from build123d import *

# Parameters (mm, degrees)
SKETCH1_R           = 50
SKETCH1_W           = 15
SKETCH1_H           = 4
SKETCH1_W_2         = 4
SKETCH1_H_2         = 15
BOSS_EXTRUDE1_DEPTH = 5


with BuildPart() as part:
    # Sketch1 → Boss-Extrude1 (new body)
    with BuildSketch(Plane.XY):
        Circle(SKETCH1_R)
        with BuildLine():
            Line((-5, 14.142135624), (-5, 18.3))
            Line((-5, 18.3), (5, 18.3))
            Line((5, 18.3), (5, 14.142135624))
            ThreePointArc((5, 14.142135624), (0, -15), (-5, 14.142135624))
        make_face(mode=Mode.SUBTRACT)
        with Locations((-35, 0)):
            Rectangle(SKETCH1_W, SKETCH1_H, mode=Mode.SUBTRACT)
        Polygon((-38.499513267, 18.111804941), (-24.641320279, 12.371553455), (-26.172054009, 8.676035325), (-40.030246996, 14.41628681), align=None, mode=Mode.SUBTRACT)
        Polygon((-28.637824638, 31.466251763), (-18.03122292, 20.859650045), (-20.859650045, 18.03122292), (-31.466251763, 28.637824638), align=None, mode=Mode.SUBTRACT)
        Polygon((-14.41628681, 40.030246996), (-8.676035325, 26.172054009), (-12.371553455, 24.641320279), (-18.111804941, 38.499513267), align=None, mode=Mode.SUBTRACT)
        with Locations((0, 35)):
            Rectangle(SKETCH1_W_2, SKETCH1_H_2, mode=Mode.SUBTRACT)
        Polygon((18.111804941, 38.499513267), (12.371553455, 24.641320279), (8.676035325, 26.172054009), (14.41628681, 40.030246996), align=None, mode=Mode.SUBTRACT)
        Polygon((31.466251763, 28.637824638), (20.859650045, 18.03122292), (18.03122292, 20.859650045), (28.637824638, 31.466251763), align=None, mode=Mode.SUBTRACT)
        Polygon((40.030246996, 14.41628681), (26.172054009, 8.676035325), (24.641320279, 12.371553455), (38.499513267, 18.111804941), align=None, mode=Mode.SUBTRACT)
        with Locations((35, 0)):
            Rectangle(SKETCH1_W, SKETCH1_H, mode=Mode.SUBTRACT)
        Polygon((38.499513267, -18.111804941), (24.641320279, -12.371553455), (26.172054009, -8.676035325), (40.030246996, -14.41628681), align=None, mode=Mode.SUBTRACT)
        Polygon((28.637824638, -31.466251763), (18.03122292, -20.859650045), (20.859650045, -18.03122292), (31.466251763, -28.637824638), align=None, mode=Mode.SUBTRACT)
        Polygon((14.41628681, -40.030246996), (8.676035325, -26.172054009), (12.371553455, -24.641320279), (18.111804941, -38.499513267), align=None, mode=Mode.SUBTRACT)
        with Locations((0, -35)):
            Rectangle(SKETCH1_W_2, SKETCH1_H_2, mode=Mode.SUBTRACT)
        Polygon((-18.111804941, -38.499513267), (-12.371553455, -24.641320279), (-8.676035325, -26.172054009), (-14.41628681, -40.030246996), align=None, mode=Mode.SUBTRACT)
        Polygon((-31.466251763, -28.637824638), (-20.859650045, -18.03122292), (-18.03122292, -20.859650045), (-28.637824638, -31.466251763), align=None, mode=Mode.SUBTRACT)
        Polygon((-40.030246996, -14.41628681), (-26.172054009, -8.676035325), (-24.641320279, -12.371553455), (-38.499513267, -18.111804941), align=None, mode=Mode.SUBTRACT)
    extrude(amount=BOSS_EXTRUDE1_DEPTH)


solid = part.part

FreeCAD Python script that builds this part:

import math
import FreeCAD as App
import Part
import Sketcher
Q = App.Units.Quantity

doc = App.newDocument("Part")
body = doc.addObject("PartDesign::Body", "Body")

sketch1 = body.newObject("Sketcher::SketchObject", "Sketch")
sketch1.AttachmentSupport = (doc.getObject("XY_Plane"), [""])
sketch1.MapMode = "FlatFace"
sketch1.addGeometry([
    Part.Circle(App.Vector(0, 0, 0), App.Vector(0, 0, 1), 50),
    Part.LineSegment(App.Vector(-28.637825, -31.466252, 0), App.Vector(-31.466252, -28.637825, 0)),
    Part.LineSegment(App.Vector(-31.466252, -28.637825, 0), App.Vector(-20.85965, -18.031223, 0)),
    Part.LineSegment(App.Vector(-20.85965, -18.031223, 0), App.Vector(-18.031223, -20.85965, 0)),
    Part.LineSegment(App.Vector(-18.031223, -20.85965, 0), App.Vector(-28.637825, -31.466252, 0)),
    Part.LineSegment(App.Vector(-14.416287, -40.030247, 0), App.Vector(-18.111805, -38.499513, 0)),
    Part.LineSegment(App.Vector(-18.111805, -38.499513, 0), App.Vector(-12.371553, -24.64132, 0)),
    Part.LineSegment(App.Vector(-12.371553, -24.64132, 0), App.Vector(-8.676035, -26.172054, 0)),
    Part.LineSegment(App.Vector(-8.676035, -26.172054, 0), App.Vector(-14.416287, -40.030247, 0)),
    Part.LineSegment(App.Vector(-38.499513, -18.111805, 0), App.Vector(-40.030247, -14.416287, 0)),
    Part.LineSegment(App.Vector(-40.030247, -14.416287, 0), App.Vector(-26.172054, -8.676035, 0)),
    Part.LineSegment(App.Vector(-26.172054, -8.676035, 0), App.Vector(-24.64132, -12.371553, 0)),
    Part.LineSegment(App.Vector(-24.64132, -12.371553, 0), App.Vector(-38.499513, -18.111805, 0)),
    Part.LineSegment(App.Vector(2, -42.5, 0), App.Vector(-2, -42.5, 0)),
    Part.LineSegment(App.Vector(-2, -42.5, 0), App.Vector(-2, -27.5, 0)),
    Part.LineSegment(App.Vector(-2, -27.5, 0), App.Vector(2, -27.5, 0)),
    Part.LineSegment(App.Vector(2, -27.5, 0), App.Vector(2, -42.5, 0)),
    Part.LineSegment(App.Vector(18.111805, -38.499513, 0), App.Vector(14.416287, -40.030247, 0)),
    Part.LineSegment(App.Vector(14.416287, -40.030247, 0), App.Vector(8.676035, -26.172054, 0)),
    Part.LineSegment(App.Vector(8.676035, -26.172054, 0), App.Vector(12.371553, -24.64132, 0)),
    Part.LineSegment(App.Vector(12.371553, -24.64132, 0), App.Vector(18.111805, -38.499513, 0)),
    Part.LineSegment(App.Vector(31.466252, -28.637825, 0), App.Vector(28.637825, -31.466252, 0)),
    Part.LineSegment(App.Vector(28.637825, -31.466252, 0), App.Vector(18.031223, -20.85965, 0)),
    Part.LineSegment(App.Vector(18.031223, -20.85965, 0), App.Vector(20.85965, -18.031223, 0)),
    Part.LineSegment(App.Vector(20.85965, -18.031223, 0), App.Vector(31.466252, -28.637825, 0)),
    Part.LineSegment(App.Vector(40.030247, -14.416287, 0), App.Vector(38.499513, -18.111805, 0)),
    Part.LineSegment(App.Vector(38.499513, -18.111805, 0), App.Vector(24.64132, -12.371553, 0)),
    Part.LineSegment(App.Vector(24.64132, -12.371553, 0), App.Vector(26.172054, -8.676035, 0)),
    Part.LineSegment(App.Vector(26.172054, -8.676035, 0), App.Vector(40.030247, -14.416287, 0)),
    Part.LineSegment(App.Vector(-27.5, -2, 0), App.Vector(-42.5, -2, 0)),
    Part.LineSegment(App.Vector(-42.5, -2, 0), App.Vector(-42.5, 2, 0)),
    Part.LineSegment(App.Vector(-42.5, 2, 0), App.Vector(-27.5, 2, 0)),
    Part.LineSegment(App.Vector(-27.5, 2, 0), App.Vector(-27.5, -2, 0)),
    Part.LineSegment(App.Vector(-40.030247, 14.416287, 0), App.Vector(-38.499513, 18.111805, 0)),
    Part.LineSegment(App.Vector(-38.499513, 18.111805, 0), App.Vector(-24.64132, 12.371553, 0)),
    Part.LineSegment(App.Vector(-24.64132, 12.371553, 0), App.Vector(-26.172054, 8.676035, 0)),
    Part.LineSegment(App.Vector(-26.172054, 8.676035, 0), App.Vector(-40.030247, 14.416287, 0)),
    Part.LineSegment(App.Vector(-31.466252, 28.637825, 0), App.Vector(-28.637825, 31.466252, 0)),
    Part.LineSegment(App.Vector(-28.637825, 31.466252, 0), App.Vector(-18.031223, 20.85965, 0)),
    Part.LineSegment(App.Vector(-18.031223, 20.85965, 0), App.Vector(-20.85965, 18.031223, 0)),
    Part.LineSegment(App.Vector(-20.85965, 18.031223, 0), App.Vector(-31.466252, 28.637825, 0)),
    Part.LineSegment(App.Vector(-18.111805, 38.499513, 0), App.Vector(-14.416287, 40.030247, 0)),
    Part.LineSegment(App.Vector(-14.416287, 40.030247, 0), App.Vector(-8.676035, 26.172054, 0)),
    Part.LineSegment(App.Vector(-8.676035, 26.172054, 0), App.Vector(-12.371553, 24.64132, 0)),
    Part.LineSegment(App.Vector(-12.371553, 24.64132, 0), App.Vector(-18.111805, 38.499513, 0)),
    Part.ArcOfCircle(Part.Circle(App.Vector(0, 0, 0), App.Vector(0, 0, 1), 15), math.radians(109.471221), math.radians(430.528779)),
    Part.LineSegment(App.Vector(-5, 14.142136, 0), App.Vector(-5, 18.3, 0)),
    Part.LineSegment(App.Vector(-5, 18.3, 0), App.Vector(5, 18.3, 0)),
    Part.LineSegment(App.Vector(5, 18.3, 0), App.Vector(5, 14.142136, 0)),
    Part.LineSegment(App.Vector(42.5, -2, 0), App.Vector(27.5, -2, 0)),
    Part.LineSegment(App.Vector(27.5, -2, 0), App.Vector(27.5, 2, 0)),
    Part.LineSegment(App.Vector(27.5, 2, 0), App.Vector(42.5, 2, 0)),
    Part.LineSegment(App.Vector(42.5, 2, 0), App.Vector(42.5, -2, 0)),
    Part.LineSegment(App.Vector(38.499513, 18.111805, 0), App.Vector(40.030247, 14.416287, 0)),
    Part.LineSegment(App.Vector(40.030247, 14.416287, 0), App.Vector(26.172054, 8.676035, 0)),
    Part.LineSegment(App.Vector(26.172054, 8.676035, 0), App.Vector(24.64132, 12.371553, 0)),
    Part.LineSegment(App.Vector(24.64132, 12.371553, 0), App.Vector(38.499513, 18.111805, 0)),
    Part.LineSegment(App.Vector(2, 27.5, 0), App.Vector(-2, 27.5, 0)),
    Part.LineSegment(App.Vector(-2, 27.5, 0), App.Vector(-2, 42.5, 0)),
    Part.LineSegment(App.Vector(-2, 42.5, 0), App.Vector(2, 42.5, 0)),
    Part.LineSegment(App.Vector(2, 42.5, 0), App.Vector(2, 27.5, 0)),
    Part.LineSegment(App.Vector(14.416287, 40.030247, 0), App.Vector(18.111805, 38.499513, 0)),
    Part.LineSegment(App.Vector(18.111805, 38.499513, 0), App.Vector(12.371553, 24.64132, 0)),
    Part.LineSegment(App.Vector(12.371553, 24.64132, 0), App.Vector(8.676035, 26.172054, 0)),
    Part.LineSegment(App.Vector(8.676035, 26.172054, 0), App.Vector(14.416287, 40.030247, 0)),
    Part.LineSegment(App.Vector(28.637825, 31.466252, 0), App.Vector(31.466252, 28.637825, 0)),
    Part.LineSegment(App.Vector(31.466252, 28.637825, 0), App.Vector(20.85965, 18.031223, 0)),
    Part.LineSegment(App.Vector(20.85965, 18.031223, 0), App.Vector(18.031223, 20.85965, 0)),
    Part.LineSegment(App.Vector(18.031223, 20.85965, 0), App.Vector(28.637825, 31.466252, 0)),
], False)
sketch1.addConstraint([
    Sketcher.Constraint("Coincident", 1, 2, 2, 1),
    Sketcher.Constraint("Coincident", 2, 2, 3, 1),
    Sketcher.Constraint("Coincident", 3, 2, 4, 1),
    Sketcher.Constraint("Coincident", 4, 2, 1, 1),
    Sketcher.Constraint("Coincident", 5, 2, 6, 1),
    Sketcher.Constraint("Coincident", 6, 2, 7, 1),
    Sketcher.Constraint("Coincident", 7, 2, 8, 1),
    Sketcher.Constraint("Coincident", 8, 2, 5, 1),
    Sketcher.Constraint("Coincident", 9, 2, 10, 1),
    Sketcher.Constraint("Coincident", 10, 2, 11, 1),
    Sketcher.Constraint("Coincident", 11, 2, 12, 1),
    Sketcher.Constraint("Coincident", 12, 2, 9, 1),
    Sketcher.Constraint("Coincident", 13, 2, 14, 1),
    Sketcher.Constraint("Coincident", 14, 2, 15, 1),
    Sketcher.Constraint("Coincident", 15, 2, 16, 1),
    Sketcher.Constraint("Coincident", 16, 2, 13, 1),
    Sketcher.Constraint("Coincident", 17, 2, 18, 1),
    Sketcher.Constraint("Coincident", 18, 2, 19, 1),
    Sketcher.Constraint("Coincident", 19, 2, 20, 1),
    Sketcher.Constraint("Coincident", 20, 2, 17, 1),
    Sketcher.Constraint("Coincident", 21, 2, 22, 1),
    Sketcher.Constraint("Coincident", 22, 2, 23, 1),
    Sketcher.Constraint("Coincident", 23, 2, 24, 1),
    Sketcher.Constraint("Coincident", 24, 2, 21, 1),
    Sketcher.Constraint("Coincident", 25, 2, 26, 1),
    Sketcher.Constraint("Coincident", 26, 2, 27, 1),
    Sketcher.Constraint("Coincident", 27, 2, 28, 1),
    Sketcher.Constraint("Coincident", 28, 2, 25, 1),
    Sketcher.Constraint("Coincident", 29, 2, 30, 1),
    Sketcher.Constraint("Coincident", 30, 2, 31, 1),
    Sketcher.Constraint("Coincident", 31, 2, 32, 1),
    Sketcher.Constraint("Coincident", 32, 2, 29, 1),
    Sketcher.Constraint("Coincident", 33, 2, 34, 1),
    Sketcher.Constraint("Coincident", 34, 2, 35, 1),
    Sketcher.Constraint("Coincident", 35, 2, 36, 1),
    Sketcher.Constraint("Coincident", 36, 2, 33, 1),
    Sketcher.Constraint("Coincident", 37, 2, 38, 1),
    Sketcher.Constraint("Coincident", 38, 2, 39, 1),
    Sketcher.Constraint("Coincident", 39, 2, 40, 1),
    Sketcher.Constraint("Coincident", 40, 2, 37, 1),
    Sketcher.Constraint("Coincident", 41, 2, 42, 1),
    Sketcher.Constraint("Coincident", 42, 2, 43, 1),
    Sketcher.Constraint("Coincident", 43, 2, 44, 1),
    Sketcher.Constraint("Coincident", 44, 2, 41, 1),
    Sketcher.Constraint("Coincident", 45, 1, 46, 1),
    Sketcher.Constraint("Coincident", 46, 2, 47, 1),
    Sketcher.Constraint("Coincident", 47, 2, 48, 1),
    Sketcher.Constraint("Coincident", 48, 2, 45, 2),
    Sketcher.Constraint("Coincident", 49, 2, 50, 1),
    Sketcher.Constraint("Coincident", 50, 2, 51, 1),
    Sketcher.Constraint("Coincident", 51, 2, 52, 1),
    Sketcher.Constraint("Coincident", 52, 2, 49, 1),
    Sketcher.Constraint("Coincident", 53, 2, 54, 1),
    Sketcher.Constraint("Coincident", 54, 2, 55, 1),
    Sketcher.Constraint("Coincident", 55, 2, 56, 1),
    Sketcher.Constraint("Coincident", 56, 2, 53, 1),
    Sketcher.Constraint("Coincident", 57, 2, 58, 1),
    Sketcher.Constraint("Coincident", 58, 2, 59, 1),
    Sketcher.Constraint("Coincident", 59, 2, 60, 1),
    Sketcher.Constraint("Coincident", 60, 2, 57, 1),
    Sketcher.Constraint("Coincident", 61, 2, 62, 1),
    Sketcher.Constraint("Coincident", 62, 2, 63, 1),
    Sketcher.Constraint("Coincident", 63, 2, 64, 1),
    Sketcher.Constraint("Coincident", 64, 2, 61, 1),
    Sketcher.Constraint("Coincident", 65, 2, 66, 1),
    Sketcher.Constraint("Coincident", 66, 2, 67, 1),
    Sketcher.Constraint("Coincident", 67, 2, 68, 1),
    Sketcher.Constraint("Coincident", 68, 2, 65, 1),
    Sketcher.Constraint("Horizontal", 13),
    Sketcher.Constraint("Vertical", 14),
    Sketcher.Constraint("Horizontal", 15),
    Sketcher.Constraint("Vertical", 16),
    Sketcher.Constraint("Horizontal", 29),
    Sketcher.Constraint("Vertical", 30),
    Sketcher.Constraint("Horizontal", 31),
    Sketcher.Constraint("Vertical", 32),
    Sketcher.Constraint("Vertical", 46),
    Sketcher.Constraint("Horizontal", 47),
    Sketcher.Constraint("Vertical", 48),
    Sketcher.Constraint("Horizontal", 49),
    Sketcher.Constraint("Vertical", 50),
    Sketcher.Constraint("Horizontal", 51),
    Sketcher.Constraint("Vertical", 52),
    Sketcher.Constraint("Horizontal", 57),
    Sketcher.Constraint("Vertical", 58),
    Sketcher.Constraint("Horizontal", 59),
    Sketcher.Constraint("Vertical", 60),
    Sketcher.Constraint("Coincident", 0, 3, -1, 1),
    Sketcher.Constraint("Coincident", 45, 3, -1, 1),
    Sketcher.Constraint("Symmetric", 25, 2, 33, 2, -1, 1),
    Sketcher.Constraint("Symmetric", 26, 2, 34, 2, -1, 1),
    Sketcher.Constraint("Symmetric", 27, 2, 35, 2, -1, 1),
    Sketcher.Constraint("Symmetric", 28, 2, 36, 2, -1, 1),
    Sketcher.Constraint("Symmetric", 21, 2, 37, 2, -1, 1),
    Sketcher.Constraint("Symmetric", 22, 2, 38, 2, -1, 1),
    Sketcher.Constraint("Symmetric", 23, 2, 39, 2, -1, 1),
    Sketcher.Constraint("Symmetric", 24, 2, 40, 2, -1, 1),
    Sketcher.Constraint("Symmetric", 17, 2, 41, 2, -1, 1),
    Sketcher.Constraint("Symmetric", 18, 2, 42, 2, -1, 1),
    Sketcher.Constraint("Symmetric", 19, 2, 43, 2, -1, 1),
    Sketcher.Constraint("Symmetric", 20, 2, 44, 2, -1, 1),
    Sketcher.Constraint("Symmetric", 31, 2, 49, 2, -1, 1),
    Sketcher.Constraint("Symmetric", 29, 2, 51, 2, -1, 1),
    Sketcher.Constraint("Symmetric", 9, 2, 53, 2, -1, 1),
    Sketcher.Constraint("Symmetric", 10, 2, 54, 2, -1, 1),
    Sketcher.Constraint("Symmetric", 11, 2, 55, 2, -1, 1),
    Sketcher.Constraint("Symmetric", 12, 2, 56, 2, -1, 1),
    Sketcher.Constraint("Symmetric", 15, 2, 57, 2, -1, 1),
    Sketcher.Constraint("Symmetric", 13, 2, 59, 2, -1, 1),
    Sketcher.Constraint("Symmetric", 5, 2, 61, 2, -1, 1),
    Sketcher.Constraint("Symmetric", 6, 2, 62, 2, -1, 1),
    Sketcher.Constraint("Symmetric", 7, 2, 63, 2, -1, 1),
    Sketcher.Constraint("Symmetric", 8, 2, 64, 2, -1, 1),
    Sketcher.Constraint("Symmetric", 1, 2, 65, 2, -1, 1),
    Sketcher.Constraint("Symmetric", 2, 2, 66, 2, -1, 1),
    Sketcher.Constraint("Symmetric", 3, 2, 67, 2, -1, 1),
    Sketcher.Constraint("Symmetric", 4, 2, 68, 2, -1, 1),
    Sketcher.Constraint("Symmetric", 8, 2, 17, 2, -2),
    Sketcher.Constraint("Symmetric", 7, 2, 18, 2, -2),
    Sketcher.Constraint("Symmetric", 6, 2, 19, 2, -2),
    Sketcher.Constraint("Symmetric", 5, 2, 20, 2, -2),
    Sketcher.Constraint("Symmetric", 4, 2, 21, 2, -2),
    Sketcher.Constraint("Symmetric", 3, 2, 22, 2, -2),
    Sketcher.Constraint("Symmetric", 2, 2, 23, 2, -2),
    Sketcher.Constraint("Symmetric", 1, 2, 24, 2, -2),
    Sketcher.Constraint("Symmetric", 12, 2, 25, 2, -2),
    Sketcher.Constraint("Symmetric", 11, 2, 26, 2, -2),
    Sketcher.Constraint("Symmetric", 10, 2, 27, 2, -2),
    Sketcher.Constraint("Symmetric", 9, 2, 28, 2, -2),
    Sketcher.Constraint("Perpendicular", 1, 2),
    Sketcher.Constraint("Perpendicular", 2, 3),
    Sketcher.Constraint("Perpendicular", 3, 4),
    Sketcher.Constraint("Perpendicular", 5, 6),
    Sketcher.Constraint("Perpendicular", 6, 7),
    Sketcher.Constraint("Perpendicular", 7, 8),
    Sketcher.Constraint("Perpendicular", 9, 10),
    Sketcher.Constraint("Perpendicular", 10, 11),
    Sketcher.Constraint("Perpendicular", 11, 12),
    Sketcher.Constraint("Parallel", 12, 17),
    Sketcher.Constraint("Parallel", 4, 21),
    Sketcher.Constraint("Horizontal", 45, 1, 48, 2),
    Sketcher.Constraint("Horizontal", 32, 2, 49, 2),
    Sketcher.Constraint("Vertical", 14, 2, 57, 2),
    Sketcher.Constraint("Equal", 51, 14),
    Sketcher.Constraint("Equal", 59, 30),
    Sketcher.Constraint("Equal", 3, 5),
    Sketcher.Constraint("Equal", 4, 6),
    Sketcher.Constraint("Equal", 7, 9),
    Sketcher.Constraint("Equal", 8, 10),
    Sketcher.Constraint("Diameter", 0, 100.0),
    Sketcher.Constraint("Radius", 45, 15.0),
    Sketcher.Constraint("DistanceX", 13, 2, 13, 1, 4.0),
    Sketcher.Constraint("DistanceX", 29, 2, 29, 1, 15.0),
    Sketcher.Constraint("DistanceX", 47, 1, 47, 2, 10.0),
    Sketcher.Constraint("Distance", 1, 4.0),
    Sketcher.Constraint("Distance", 2, 15.0),
    Sketcher.Constraint("Angle", 5, Q("157.5 deg")),
    Sketcher.Constraint("DistanceY", 13, 2, -1, 1, 42.5),
    Sketcher.Constraint("DistanceX", 29, 2, -1, 1, 42.5),
    Sketcher.Constraint("DistanceY", -1, 1, 46, 2, 18.3),
    Sketcher.Constraint("DistanceX", 1, 2, -1, 1, 31.466252),
    Sketcher.Constraint("DistanceY", 3, 2, -1, 1, 20.85965),
    Sketcher.Constraint("DistanceY", 6, 2, -1, 1, 24.64132),
    Sketcher.Constraint("DistanceX", 11, 2, -1, 1, 24.64132),
    Sketcher.Constraint("DistanceX", 5, 2, -1, 1, 18.111805),
    Sketcher.Constraint("DistanceY", 9, 2, -1, 1, 14.416287),
])
pad1 = body.newObject("PartDesign::Pad", "Pad")
pad1.Profile = sketch1
pad1.Length = 5

doc.recompute()
